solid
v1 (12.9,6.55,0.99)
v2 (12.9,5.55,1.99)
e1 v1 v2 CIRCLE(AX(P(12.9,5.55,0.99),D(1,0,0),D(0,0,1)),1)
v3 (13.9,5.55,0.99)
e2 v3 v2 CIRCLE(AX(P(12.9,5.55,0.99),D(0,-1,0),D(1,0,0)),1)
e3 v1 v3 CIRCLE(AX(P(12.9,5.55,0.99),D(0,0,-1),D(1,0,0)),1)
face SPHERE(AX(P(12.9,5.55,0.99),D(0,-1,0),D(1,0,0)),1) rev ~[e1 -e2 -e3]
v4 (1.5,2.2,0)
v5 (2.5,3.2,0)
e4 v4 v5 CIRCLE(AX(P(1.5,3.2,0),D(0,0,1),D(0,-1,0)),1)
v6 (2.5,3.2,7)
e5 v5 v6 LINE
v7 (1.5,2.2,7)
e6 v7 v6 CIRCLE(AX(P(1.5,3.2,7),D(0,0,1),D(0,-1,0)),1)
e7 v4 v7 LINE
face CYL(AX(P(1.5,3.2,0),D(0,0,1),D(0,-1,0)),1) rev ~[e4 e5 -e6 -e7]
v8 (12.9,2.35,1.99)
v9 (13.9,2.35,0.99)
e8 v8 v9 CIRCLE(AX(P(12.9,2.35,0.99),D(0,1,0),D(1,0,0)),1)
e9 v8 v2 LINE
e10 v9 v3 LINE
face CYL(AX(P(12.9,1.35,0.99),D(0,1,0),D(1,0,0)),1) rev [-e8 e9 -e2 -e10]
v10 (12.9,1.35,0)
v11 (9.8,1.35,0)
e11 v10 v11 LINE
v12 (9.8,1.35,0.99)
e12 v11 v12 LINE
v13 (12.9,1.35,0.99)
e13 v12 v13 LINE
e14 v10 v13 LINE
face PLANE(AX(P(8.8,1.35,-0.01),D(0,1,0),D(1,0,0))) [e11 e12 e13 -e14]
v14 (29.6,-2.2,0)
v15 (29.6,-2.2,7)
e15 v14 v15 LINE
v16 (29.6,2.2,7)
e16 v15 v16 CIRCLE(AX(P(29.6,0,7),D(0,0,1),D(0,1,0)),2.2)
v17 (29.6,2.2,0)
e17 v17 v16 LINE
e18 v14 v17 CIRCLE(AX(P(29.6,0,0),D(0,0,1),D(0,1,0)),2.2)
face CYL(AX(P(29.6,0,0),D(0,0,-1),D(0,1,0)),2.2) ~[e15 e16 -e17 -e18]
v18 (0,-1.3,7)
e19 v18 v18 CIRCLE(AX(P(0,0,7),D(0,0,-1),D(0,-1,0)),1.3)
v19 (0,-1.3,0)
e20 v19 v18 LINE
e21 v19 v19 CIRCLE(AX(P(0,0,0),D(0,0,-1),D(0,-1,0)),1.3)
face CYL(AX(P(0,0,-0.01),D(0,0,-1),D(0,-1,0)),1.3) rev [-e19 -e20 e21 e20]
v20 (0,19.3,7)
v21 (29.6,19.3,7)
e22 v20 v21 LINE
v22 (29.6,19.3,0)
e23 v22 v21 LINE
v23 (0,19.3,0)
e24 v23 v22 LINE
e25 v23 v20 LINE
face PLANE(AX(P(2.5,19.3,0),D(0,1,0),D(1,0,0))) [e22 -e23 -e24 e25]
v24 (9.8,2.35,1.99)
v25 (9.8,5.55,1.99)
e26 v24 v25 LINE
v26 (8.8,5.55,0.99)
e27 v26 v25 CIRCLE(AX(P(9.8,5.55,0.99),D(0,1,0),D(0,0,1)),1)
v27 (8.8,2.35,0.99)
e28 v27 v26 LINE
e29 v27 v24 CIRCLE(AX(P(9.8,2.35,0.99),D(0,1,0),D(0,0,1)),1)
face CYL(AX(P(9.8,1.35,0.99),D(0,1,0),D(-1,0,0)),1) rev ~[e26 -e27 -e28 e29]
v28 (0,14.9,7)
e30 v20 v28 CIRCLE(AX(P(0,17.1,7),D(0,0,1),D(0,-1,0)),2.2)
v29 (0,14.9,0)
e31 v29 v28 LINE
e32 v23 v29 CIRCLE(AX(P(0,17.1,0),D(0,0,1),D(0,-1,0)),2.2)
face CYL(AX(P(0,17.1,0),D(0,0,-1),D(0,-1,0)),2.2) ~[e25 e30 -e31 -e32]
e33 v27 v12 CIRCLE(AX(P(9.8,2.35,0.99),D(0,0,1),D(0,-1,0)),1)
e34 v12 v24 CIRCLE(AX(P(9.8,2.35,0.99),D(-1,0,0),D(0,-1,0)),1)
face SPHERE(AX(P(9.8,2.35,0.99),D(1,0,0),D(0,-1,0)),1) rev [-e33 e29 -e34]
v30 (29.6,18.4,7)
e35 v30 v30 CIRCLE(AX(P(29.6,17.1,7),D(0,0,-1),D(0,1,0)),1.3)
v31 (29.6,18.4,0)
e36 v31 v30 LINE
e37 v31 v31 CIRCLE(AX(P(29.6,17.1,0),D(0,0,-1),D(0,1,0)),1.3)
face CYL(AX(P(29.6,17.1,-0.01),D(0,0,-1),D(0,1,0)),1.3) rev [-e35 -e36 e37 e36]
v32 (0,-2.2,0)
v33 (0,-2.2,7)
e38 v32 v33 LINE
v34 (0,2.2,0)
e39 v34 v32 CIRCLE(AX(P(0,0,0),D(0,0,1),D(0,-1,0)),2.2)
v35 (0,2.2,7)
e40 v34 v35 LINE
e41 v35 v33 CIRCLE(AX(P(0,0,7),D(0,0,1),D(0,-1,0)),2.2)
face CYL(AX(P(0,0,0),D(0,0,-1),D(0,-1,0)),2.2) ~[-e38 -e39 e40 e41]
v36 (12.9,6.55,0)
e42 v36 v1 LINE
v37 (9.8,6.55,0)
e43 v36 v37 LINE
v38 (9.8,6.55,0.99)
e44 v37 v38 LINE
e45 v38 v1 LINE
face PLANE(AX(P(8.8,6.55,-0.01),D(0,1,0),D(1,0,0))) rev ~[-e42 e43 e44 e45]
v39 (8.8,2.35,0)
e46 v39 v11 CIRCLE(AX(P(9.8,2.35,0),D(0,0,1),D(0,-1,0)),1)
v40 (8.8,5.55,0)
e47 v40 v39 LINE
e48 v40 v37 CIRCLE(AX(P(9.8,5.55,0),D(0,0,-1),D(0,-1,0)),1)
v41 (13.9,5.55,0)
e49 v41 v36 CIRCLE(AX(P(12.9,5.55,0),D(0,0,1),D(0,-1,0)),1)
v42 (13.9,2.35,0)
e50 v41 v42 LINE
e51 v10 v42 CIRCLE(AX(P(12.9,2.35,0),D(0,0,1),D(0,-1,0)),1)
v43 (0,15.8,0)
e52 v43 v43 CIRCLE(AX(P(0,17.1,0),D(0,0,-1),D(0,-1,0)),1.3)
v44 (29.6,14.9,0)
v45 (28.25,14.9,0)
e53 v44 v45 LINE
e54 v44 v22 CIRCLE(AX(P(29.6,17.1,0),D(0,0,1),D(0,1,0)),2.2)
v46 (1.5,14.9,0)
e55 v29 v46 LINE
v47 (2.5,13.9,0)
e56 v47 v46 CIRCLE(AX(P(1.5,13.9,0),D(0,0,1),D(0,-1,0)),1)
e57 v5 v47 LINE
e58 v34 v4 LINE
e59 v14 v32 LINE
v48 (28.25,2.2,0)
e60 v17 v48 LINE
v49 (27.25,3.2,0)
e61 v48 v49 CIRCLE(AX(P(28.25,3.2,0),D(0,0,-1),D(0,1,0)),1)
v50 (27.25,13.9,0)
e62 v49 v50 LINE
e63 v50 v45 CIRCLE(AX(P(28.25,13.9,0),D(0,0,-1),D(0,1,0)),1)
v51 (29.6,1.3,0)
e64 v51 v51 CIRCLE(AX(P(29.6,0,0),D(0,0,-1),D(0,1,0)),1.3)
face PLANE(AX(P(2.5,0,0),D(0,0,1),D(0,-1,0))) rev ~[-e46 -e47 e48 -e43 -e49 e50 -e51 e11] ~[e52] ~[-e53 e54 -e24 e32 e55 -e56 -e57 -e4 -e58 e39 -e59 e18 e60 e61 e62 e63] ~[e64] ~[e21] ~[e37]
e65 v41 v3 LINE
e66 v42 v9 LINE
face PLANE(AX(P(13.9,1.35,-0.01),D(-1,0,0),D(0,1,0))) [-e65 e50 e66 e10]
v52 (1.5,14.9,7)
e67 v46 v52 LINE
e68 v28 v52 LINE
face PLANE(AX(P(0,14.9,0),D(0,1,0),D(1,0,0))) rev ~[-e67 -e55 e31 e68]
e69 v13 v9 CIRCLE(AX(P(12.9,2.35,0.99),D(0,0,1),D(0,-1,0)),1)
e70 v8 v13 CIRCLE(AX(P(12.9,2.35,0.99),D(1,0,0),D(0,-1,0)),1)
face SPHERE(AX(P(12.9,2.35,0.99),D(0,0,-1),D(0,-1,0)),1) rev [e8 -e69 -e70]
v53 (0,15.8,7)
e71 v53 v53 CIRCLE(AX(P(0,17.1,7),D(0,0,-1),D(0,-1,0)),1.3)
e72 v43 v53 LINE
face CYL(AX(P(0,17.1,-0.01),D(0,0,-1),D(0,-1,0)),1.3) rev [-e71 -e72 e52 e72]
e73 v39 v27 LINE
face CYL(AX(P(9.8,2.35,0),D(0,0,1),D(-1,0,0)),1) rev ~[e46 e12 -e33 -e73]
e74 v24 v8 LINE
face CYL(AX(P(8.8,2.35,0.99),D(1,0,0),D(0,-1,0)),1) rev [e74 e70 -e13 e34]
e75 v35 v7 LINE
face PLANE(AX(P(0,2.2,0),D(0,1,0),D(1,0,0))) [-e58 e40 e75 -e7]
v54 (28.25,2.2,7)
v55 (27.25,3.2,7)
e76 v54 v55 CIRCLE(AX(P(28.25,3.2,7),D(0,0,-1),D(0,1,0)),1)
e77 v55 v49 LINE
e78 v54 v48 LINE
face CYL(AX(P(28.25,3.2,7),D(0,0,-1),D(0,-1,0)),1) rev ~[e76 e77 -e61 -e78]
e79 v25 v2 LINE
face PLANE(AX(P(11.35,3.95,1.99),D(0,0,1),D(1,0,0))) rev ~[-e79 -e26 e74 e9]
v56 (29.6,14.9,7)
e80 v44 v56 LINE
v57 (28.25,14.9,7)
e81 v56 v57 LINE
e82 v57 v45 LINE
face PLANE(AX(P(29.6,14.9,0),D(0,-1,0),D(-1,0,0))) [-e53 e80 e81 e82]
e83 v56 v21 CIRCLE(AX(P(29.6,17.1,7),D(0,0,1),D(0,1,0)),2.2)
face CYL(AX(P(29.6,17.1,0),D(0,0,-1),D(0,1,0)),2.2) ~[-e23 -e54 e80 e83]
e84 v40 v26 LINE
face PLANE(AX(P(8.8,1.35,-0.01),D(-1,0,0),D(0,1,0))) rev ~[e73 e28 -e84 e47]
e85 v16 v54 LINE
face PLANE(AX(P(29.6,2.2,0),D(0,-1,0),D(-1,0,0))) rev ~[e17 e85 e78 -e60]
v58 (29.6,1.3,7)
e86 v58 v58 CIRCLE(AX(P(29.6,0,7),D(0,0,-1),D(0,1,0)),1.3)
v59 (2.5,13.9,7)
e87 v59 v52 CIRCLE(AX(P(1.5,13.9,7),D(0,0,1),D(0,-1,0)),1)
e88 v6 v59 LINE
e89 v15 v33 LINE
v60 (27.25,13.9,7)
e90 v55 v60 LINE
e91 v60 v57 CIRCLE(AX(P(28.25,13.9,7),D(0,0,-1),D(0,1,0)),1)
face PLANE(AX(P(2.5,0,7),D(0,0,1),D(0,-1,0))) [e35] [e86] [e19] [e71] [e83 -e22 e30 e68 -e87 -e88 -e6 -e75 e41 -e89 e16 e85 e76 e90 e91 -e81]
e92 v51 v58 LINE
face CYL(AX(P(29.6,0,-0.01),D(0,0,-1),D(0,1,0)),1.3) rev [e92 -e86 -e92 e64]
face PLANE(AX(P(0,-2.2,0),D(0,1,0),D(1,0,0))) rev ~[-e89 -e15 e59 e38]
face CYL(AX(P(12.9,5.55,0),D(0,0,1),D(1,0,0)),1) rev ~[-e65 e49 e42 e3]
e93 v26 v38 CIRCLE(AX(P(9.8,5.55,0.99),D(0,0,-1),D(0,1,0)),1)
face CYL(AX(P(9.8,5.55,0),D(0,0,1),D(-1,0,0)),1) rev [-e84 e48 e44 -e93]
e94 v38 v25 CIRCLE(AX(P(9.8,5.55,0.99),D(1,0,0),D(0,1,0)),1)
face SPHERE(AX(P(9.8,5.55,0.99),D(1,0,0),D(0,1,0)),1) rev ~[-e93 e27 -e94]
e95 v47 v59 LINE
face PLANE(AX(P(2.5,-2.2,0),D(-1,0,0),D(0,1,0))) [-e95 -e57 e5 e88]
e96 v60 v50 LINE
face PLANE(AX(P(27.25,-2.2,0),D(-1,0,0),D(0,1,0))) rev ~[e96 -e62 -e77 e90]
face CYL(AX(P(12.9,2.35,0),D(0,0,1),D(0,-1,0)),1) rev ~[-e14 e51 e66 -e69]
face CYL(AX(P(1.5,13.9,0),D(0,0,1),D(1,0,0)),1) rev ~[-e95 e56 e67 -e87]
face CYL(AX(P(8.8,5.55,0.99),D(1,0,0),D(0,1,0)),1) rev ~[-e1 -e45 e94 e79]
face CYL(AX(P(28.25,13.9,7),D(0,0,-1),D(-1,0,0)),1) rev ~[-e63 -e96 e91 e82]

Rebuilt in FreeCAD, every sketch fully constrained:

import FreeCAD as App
import Part
import Sketcher

V = App.Vector
Q = App.Units.Quantity


def edges_at(feature, points):
    """Names of the edges that pass closest to the given points."""
    edges = feature.Shape.Edges
    near = lambda p: min(range(len(edges)), key=lambda i: edges[i].distToShape(Part.Vertex(*p))[0])
    return sorted({f"Edge{near(p) + 1}" for p in points})


def add_polygon(sketch, points):
    """Adds a closed chain of lines whose ends are joined by coincident constraints."""
    first, n = sketch.GeometryCount, len(points)
    for a, b in zip(points, points[1:] + points[:1]):
        sketch.addGeometry(Part.LineSegment(App.Vector(*a, 0), App.Vector(*b, 0)), False)
    for i in range(n):
        sketch.addConstraint(Sketcher.Constraint("Coincident", first + i, 2, first + (i + 1) % n, 1))

doc = App.newDocument("Part")
body = doc.addObject("PartDesign::Body", "Body")

# Sketch on XY plane
sketch1 = body.newObject("Sketcher::SketchObject", "Sketch")
sketch1.AttachmentSupport = (doc.getObject("XY_Plane"), [""])
sketch1.MapMode = "FlatFace"
sketch1.AttachmentOffset = App.Placement(V(0, 0, -0.01), App.Rotation())
add_polygon(sketch1, [(8.8, 6.55), (8.8, 1.35), (13.9, 1.35), (13.9, 6.55)])  # lines 0-3
sketch1.addConstraint([
    Sketcher.Constraint("Vertical", 0),
    Sketcher.Constraint("Horizontal", 1),
    Sketcher.Constraint("Vertical", 2),
    Sketcher.Constraint("Horizontal", 3),
    Sketcher.Constraint("DistanceX", 1, 1, 1, 2, Q("5.1 mm")),
    Sketcher.Constraint("DistanceY", 0, 2, 0, 1, Q("5.2 mm")),
    Sketcher.Constraint("DistanceX", -1, 1, 0, 2, Q("8.8 mm")),
    Sketcher.Constraint("DistanceY", -1, 1, 0, 2, Q("1.35 mm")),
])
pad1 = body.newObject("PartDesign::Pad", "Pad")
pad1.Profile = sketch1
pad1.Length = 2
body2 = doc.addObject("PartDesign::Body", "Body001")

# Sketch on XY plane
sketch2 = body2.newObject("Sketcher::SketchObject", "Sketch001")
sketch2.AttachmentSupport = (doc.getObject("XY_Plane001"), [""])
sketch2.MapMode = "FlatFace"
sketch2.AttachmentOffset = App.Placement(V(0, 0, -0.01), App.Rotation())
sketch2.addGeometry(Part.Circle(V(0, 0, 0), V(0, 0, 1), 1.3), False)
sketch2.addConstraint([
    Sketcher.Constraint("Coincident", 0, 3, -1, 1),
    Sketcher.Constraint("Diameter", 0, Q("2.6 mm")),
])
pad2 = body2.newObject("PartDesign::Pad", "Pad001")
pad2.Profile = sketch2
pad2.Length = 7.1
body3 = doc.addObject("PartDesign::Body", "Body002")

# Sketch on XY plane
sketch3 = body3.newObject("Sketcher::SketchObject", "Sketch002")
sketch3.AttachmentSupport = (doc.getObject("XY_Plane002"), [""])
sketch3.MapMode = "FlatFace"
add_polygon(sketch3, [(-2.2, 5), (-2.2, 0), (2.2, 0), (2.2, 5)])  # lines 0-3
sketch3.addConstraint([
    Sketcher.Constraint("Vertical", 0),
    Sketcher.Constraint("Horizontal", 1),
    Sketcher.Constraint("Vertical", 2),
    Sketcher.Constraint("Horizontal", 3),
    Sketcher.Constraint("Symmetric", 0, 2, 1, 2, -1, 1),
    Sketcher.Constraint("DistanceY", 0, 2, 0, 1, Q("5 mm")),
    Sketcher.Constraint("DistanceX", 1, 1, 1, 2, Q("4.4 mm")),
])
pad3 = body3.newObject("PartDesign::Pad", "Pad002")
pad3.Profile = sketch3
pad3.Length = 7
body4 = doc.addObject("PartDesign::Body", "Body003")

# Sketch on XY plane
sketch4 = body4.newObject("Sketcher::SketchObject", "Sketch003")
sketch4.AttachmentSupport = (doc.getObject("XY_Plane003"), [""])
sketch4.MapMode = "FlatFace"
sketch4.addGeometry(Part.Circle(V(0, 0, 0), V(0, 0, 1), 2.2), False)
sketch4.addConstraint([
    Sketcher.Constraint("Coincident", 0, 3, -1, 1),
    Sketcher.Constraint("Diameter", 0, Q("4.4 mm")),
])
pad4 = body4.newObject("PartDesign::Pad", "Pad003")
pad4.Profile = sketch4
pad4.Length = 7
doc.recompute()

boolean = body4.newObject("PartDesign::Boolean", "Boolean")
boolean.Type = "Fuse"
boolean.addObjects([body3])
doc.recompute()

boolean2 = body4.newObject("PartDesign::Boolean", "Boolean001")
boolean2.Type = "Cut"
boolean2.addObjects([body2])
body5 = doc.addObject("PartDesign::Body", "Body004")
doc.recompute()

body4.Placement = App.Placement(V(29.6, 0, 0), App.Rotation(V(0, 0, 1), 90))
boolean3 = body5.newObject("PartDesign::Boolean", "Boolean002")
boolean3.Type = "Fuse"
boolean3.addObjects([body4])
body6 = doc.addObject("PartDesign::Body", "Body005")

# Sketch on XY plane
sketch5 = body6.newObject("Sketcher::SketchObject", "Sketch004")
sketch5.AttachmentSupport = (doc.getObject("XY_Plane005"), [""])
sketch5.MapMode = "FlatFace"
sketch5.AttachmentOffset = App.Placement(V(0, 0, -0.01), App.Rotation())
sketch5.addGeometry(Part.Circle(V(0, 0, 0), V(0, 0, 1), 1.3), False)
sketch5.addConstraint([
    Sketcher.Constraint("Coincident", 0, 3, -1, 1),
    Sketcher.Constraint("Diameter", 0, Q("2.6 mm")),
])
pad5 = body6.newObject("PartDesign::Pad", "Pad004")
pad5.Profile = sketch5
pad5.Length = 7.1
body7 = doc.addObject("PartDesign::Body", "Body006")

# Sketch on XY plane
sketch6 = body7.newObject("Sketcher::SketchObject", "Sketch005")
sketch6.AttachmentSupport = (doc.getObject("XY_Plane006"), [""])
sketch6.MapMode = "FlatFace"
add_polygon(sketch6, [(-2.2, 5), (-2.2, 0), (2.2, 0), (2.2, 5)])  # lines 0-3
sketch6.addConstraint([
    Sketcher.Constraint("Vertical", 0),
    Sketcher.Constraint("Horizontal", 1),
    Sketcher.Constraint("Vertical", 2),
    Sketcher.Constraint("Horizontal", 3),
    Sketcher.Constraint("Symmetric", 0, 2, 1, 2, -1, 1),
    Sketcher.Constraint("DistanceY", 0, 2, 0, 1, Q("5 mm")),
    Sketcher.Constraint("DistanceX", 1, 1, 1, 2, Q("4.4 mm")),
])
pad6 = body7.newObject("PartDesign::Pad", "Pad005")
pad6.Profile = sketch6
pad6.Length = 7
body8 = doc.addObject("PartDesign::Body", "Body007")

# Sketch on XY plane
sketch7 = body8.newObject("Sketcher::SketchObject", "Sketch006")
sketch7.AttachmentSupport = (doc.getObject("XY_Plane007"), [""])
sketch7.MapMode = "FlatFace"
sketch7.addGeometry(Part.Circle(V(0, 0, 0), V(0, 0, 1), 2.2), False)
sketch7.addConstraint([
    Sketcher.Constraint("Coincident", 0, 3, -1, 1),
    Sketcher.Constraint("Diameter", 0, Q("4.4 mm")),
])
pad7 = body8.newObject("PartDesign::Pad", "Pad006")
pad7.Profile = sketch7
pad7.Length = 7
doc.recompute()

boolean4 = body8.newObject("PartDesign::Boolean", "Boolean003")
boolean4.Type = "Fuse"
boolean4.addObjects([body7])
doc.recompute()

boolean5 = body8.newObject("PartDesign::Boolean", "Boolean004")
boolean5.Type = "Cut"
boolean5.addObjects([body6])
body9 = doc.addObject("PartDesign::Body", "Body008")
doc.recompute()

body8.Placement = App.Placement(V(29.6, 17.1, 0), App.Rotation(V(0, 0, 1), 90))
boolean6 = body9.newObject("PartDesign::Boolean", "Boolean005")
boolean6.Type = "Fuse"
boolean6.addObjects([body8])
body10 = doc.addObject("PartDesign::Body", "Body009")

# Sketch on XY plane
sketch8 = body10.newObject("Sketcher::SketchObject", "Sketch007")
sketch8.AttachmentSupport = (doc.getObject("XY_Plane009"), [""])
sketch8.MapMode = "FlatFace"
sketch8.AttachmentOffset = App.Placement(V(0, 0, -0.01), App.Rotation())
sketch8.addGeometry(Part.Circle(V(0, 0, 0), V(0, 0, 1), 1.3), False)
sketch8.addConstraint([
    Sketcher.Constraint("Coincident", 0, 3, -1, 1),
    Sketcher.Constraint("Diameter", 0, Q("2.6 mm")),
])
pad8 = body10.newObject("PartDesign::Pad", "Pad007")
pad8.Profile = sketch8
pad8.Length = 7.1
body11 = doc.addObject("PartDesign::Body", "Body010")

# Sketch on XY plane
sketch9 = body11.newObject("Sketcher::SketchObject", "Sketch008")
sketch9.AttachmentSupport = (doc.getObject("XY_Plane010"), [""])
sketch9.MapMode = "FlatFace"
add_polygon(sketch9, [(-2.2, 5), (-2.2, 0), (2.2, 0), (2.2, 5)])  # lines 0-3
sketch9.addConstraint([
    Sketcher.Constraint("Vertical", 0),
    Sketcher.Constraint("Horizontal", 1),
    Sketcher.Constraint("Vertical", 2),
    Sketcher.Constraint("Horizontal", 3),
    Sketcher.Constraint("Symmetric", 0, 2, 1, 2, -1, 1),
    Sketcher.Constraint("DistanceY", 0, 2, 0, 1, Q("5 mm")),
    Sketcher.Constraint("DistanceX", 1, 1, 1, 2, Q("4.4 mm")),
])
pad9 = body11.newObject("PartDesign::Pad", "Pad008")
pad9.Profile = sketch9
pad9.Length = 7
body12 = doc.addObject("PartDesign::Body", "Body011")

# Sketch on XY plane
sketch10 = body12.newObject("Sketcher::SketchObject", "Sketch009")
sketch10.AttachmentSupport = (doc.getObject("XY_Plane011"), [""])
sketch10.MapMode = "FlatFace"
sketch10.addGeometry(Part.Circle(V(0, 0, 0), V(0, 0, 1), 2.2), False)
sketch10.addConstraint([
    Sketcher.Constraint("Coincident", 0, 3, -1, 1),
    Sketcher.Constraint("Diameter", 0, Q("4.4 mm")),
])
pad10 = body12.newObject("PartDesign::Pad", "Pad009")
pad10.Profile = sketch10
pad10.Length = 7
doc.recompute()

boolean7 = body12.newObject("PartDesign::Boolean", "Boolean006")
boolean7.Type = "Fuse"
boolean7.addObjects([body11])
doc.recompute()

boolean8 = body12.newObject("PartDesign::Boolean", "Boolean007")
boolean8.Type = "Cut"
boolean8.addObjects([body10])
body13 = doc.addObject("PartDesign::Body", "Body012")
doc.recompute()

body12.Placement = App.Placement(V(0, 17.1, 0), App.Rotation(V(0, 0, -1), 90))
boolean9 = body13.newObject("PartDesign::Boolean", "Boolean008")
boolean9.Type = "Fuse"
boolean9.addObjects([body12])
body14 = doc.addObject("PartDesign::Body", "Body013")

# Sketch on XY plane
sketch11 = body14.newObject("Sketcher::SketchObject", "Sketch010")
sketch11.AttachmentSupport = (doc.getObject("XY_Plane013"), [""])
sketch11.MapMode = "FlatFace"
add_polygon(sketch11, [(2.5, 19.3), (2.5, -2.2), (27.25, -2.2), (27.25, 19.3)])  # lines 0-3
sketch11.addConstraint([
    Sketcher.Constraint("Vertical", 0),
    Sketcher.Constraint("Horizontal", 1),
    Sketcher.Constraint("Vertical", 2),
    Sketcher.Constraint("Horizontal", 3),
    Sketcher.Constraint("DistanceY", 0, 2, 0, 1, Q("21.5 mm")),
    Sketcher.Constraint("DistanceX", 1, 1, 1, 2, Q("24.75 mm")),
    Sketcher.Constraint("DistanceX", -1, 1, 0, 2, Q("2.5 mm")),
    Sketcher.Constraint("DistanceY", 0, 2, -1, 1, Q("2.2 mm")),
])
pad11 = body14.newObject("PartDesign::Pad", "Pad010")
pad11.Profile = sketch11
pad11.Length = 7
body15 = doc.addObject("PartDesign::Body", "Body014")

# Sketch on XY plane
sketch12 = body15.newObject("Sketcher::SketchObject", "Sketch011")
sketch12.AttachmentSupport = (doc.getObject("XY_Plane014"), [""])
sketch12.MapMode = "FlatFace"
sketch12.AttachmentOffset = App.Placement(V(0, 0, -0.01), App.Rotation())
sketch12.addGeometry(Part.Circle(V(0, 0, 0), V(0, 0, 1), 1.3), False)
sketch12.addConstraint([
    Sketcher.Constraint("Coincident", 0, 3, -1, 1),
    Sketcher.Constraint("Diameter", 0, Q("2.6 mm")),
])
pad12 = body15.newObject("PartDesign::Pad", "Pad011")
pad12.Profile = sketch12
pad12.Length = 7.1
body16 = doc.addObject("PartDesign::Body", "Body015")

# Sketch on XY plane
sketch13 = body16.newObject("Sketcher::SketchObject", "Sketch012")
sketch13.AttachmentSupport = (doc.getObject("XY_Plane015"), [""])
sketch13.MapMode = "FlatFace"
add_polygon(sketch13, [(-2.2, 5), (-2.2, 0), (2.2, 0), (2.2, 5)])  # lines 0-3
sketch13.addConstraint([
    Sketcher.Constraint("Vertical", 0),
    Sketcher.Constraint("Horizontal", 1),
    Sketcher.Constraint("Vertical", 2),
    Sketcher.Constraint("Horizontal", 3),
    Sketcher.Constraint("Symmetric", 0, 2, 1, 2, -1, 1),
    Sketcher.Constraint("DistanceY", 0, 2, 0, 1, Q("5 mm")),
    Sketcher.Constraint("DistanceX", 1, 1, 1, 2, Q("4.4 mm")),
])
pad13 = body16.newObject("PartDesign::Pad", "Pad012")
pad13.Profile = sketch13
pad13.Length = 7
body17 = doc.addObject("PartDesign::Body", "Body016")

# Sketch on XY plane
sketch14 = body17.newObject("Sketcher::SketchObject", "Sketch013")
sketch14.AttachmentSupport = (doc.getObject("XY_Plane016"), [""])
sketch14.MapMode = "FlatFace"
sketch14.addGeometry(Part.Circle(V(0, 0, 0), V(0, 0, 1), 2.2), False)
sketch14.addConstraint([
    Sketcher.Constraint("Coincident", 0, 3, -1, 1),
    Sketcher.Constraint("Diameter", 0, Q("4.4 mm")),
])
pad14 = body17.newObject("PartDesign::Pad", "Pad013")
pad14.Profile = sketch14
pad14.Length = 7
doc.recompute()

boolean10 = body17.newObject("PartDesign::Boolean", "Boolean009")
boolean10.Type = "Fuse"
boolean10.addObjects([body16])
doc.recompute()

boolean11 = body17.newObject("PartDesign::Boolean", "Boolean010")
boolean11.Type = "Cut"
boolean11.addObjects([body15])
body18 = doc.addObject("PartDesign::Body", "Body017")
body18.AllowCompound = True
doc.recompute()

body17.Placement = App.Placement(V(0, 0, 0), App.Rotation(V(0, 0, -1), 90))
boolean12 = body18.newObject("PartDesign::Boolean", "Boolean011")
boolean12.Type = "Fuse"
boolean12.addObjects([body17])
doc.recompute()

boolean13 = body18.newObject("PartDesign::Boolean", "Boolean012")
boolean13.Type = "Fuse"
boolean13.addObjects([body5])
doc.recompute()

boolean14 = body18.newObject("PartDesign::Boolean", "Boolean013")
boolean14.Type = "Fuse"
boolean14.addObjects([body9])
doc.recompute()

boolean15 = body18.newObject("PartDesign::Boolean", "Boolean014")
boolean15.Type = "Fuse"
boolean15.addObjects([body13])
doc.recompute()

boolean16 = body18.newObject("PartDesign::Boolean", "Boolean015")
boolean16.Type = "Fuse"
boolean16.addObjects([body14])
doc.recompute()

boolean17 = body18.newObject("PartDesign::Boolean", "Boolean016")
boolean17.Type = "Cut"
boolean17.addObjects([body])
doc.recompute()

fillet = body18.newObject("PartDesign::Fillet", "Fillet")
fillet.Base = (boolean17, edges_at(boolean17, [
    (2.5, 2.2, 3.5),
    (2.5, 14.9, 3.5),
    (27.25, 14.9, 3.5),
    (27.25, 2.2, 3.5),
    (13.9, 1.35, 0.995),
    (11.35, 1.35, 1.99),
    (8.8, 1.35, 0.995),
    (13.9, 3.95, 1.99),
    (13.9, 6.55, 0.995),
    (11.35, 6.55, 1.99),
    (8.8, 6.55, 0.995),
    (8.8, 3.95, 1.99),
]))
fillet.Radius = 1

doc.recompute()
